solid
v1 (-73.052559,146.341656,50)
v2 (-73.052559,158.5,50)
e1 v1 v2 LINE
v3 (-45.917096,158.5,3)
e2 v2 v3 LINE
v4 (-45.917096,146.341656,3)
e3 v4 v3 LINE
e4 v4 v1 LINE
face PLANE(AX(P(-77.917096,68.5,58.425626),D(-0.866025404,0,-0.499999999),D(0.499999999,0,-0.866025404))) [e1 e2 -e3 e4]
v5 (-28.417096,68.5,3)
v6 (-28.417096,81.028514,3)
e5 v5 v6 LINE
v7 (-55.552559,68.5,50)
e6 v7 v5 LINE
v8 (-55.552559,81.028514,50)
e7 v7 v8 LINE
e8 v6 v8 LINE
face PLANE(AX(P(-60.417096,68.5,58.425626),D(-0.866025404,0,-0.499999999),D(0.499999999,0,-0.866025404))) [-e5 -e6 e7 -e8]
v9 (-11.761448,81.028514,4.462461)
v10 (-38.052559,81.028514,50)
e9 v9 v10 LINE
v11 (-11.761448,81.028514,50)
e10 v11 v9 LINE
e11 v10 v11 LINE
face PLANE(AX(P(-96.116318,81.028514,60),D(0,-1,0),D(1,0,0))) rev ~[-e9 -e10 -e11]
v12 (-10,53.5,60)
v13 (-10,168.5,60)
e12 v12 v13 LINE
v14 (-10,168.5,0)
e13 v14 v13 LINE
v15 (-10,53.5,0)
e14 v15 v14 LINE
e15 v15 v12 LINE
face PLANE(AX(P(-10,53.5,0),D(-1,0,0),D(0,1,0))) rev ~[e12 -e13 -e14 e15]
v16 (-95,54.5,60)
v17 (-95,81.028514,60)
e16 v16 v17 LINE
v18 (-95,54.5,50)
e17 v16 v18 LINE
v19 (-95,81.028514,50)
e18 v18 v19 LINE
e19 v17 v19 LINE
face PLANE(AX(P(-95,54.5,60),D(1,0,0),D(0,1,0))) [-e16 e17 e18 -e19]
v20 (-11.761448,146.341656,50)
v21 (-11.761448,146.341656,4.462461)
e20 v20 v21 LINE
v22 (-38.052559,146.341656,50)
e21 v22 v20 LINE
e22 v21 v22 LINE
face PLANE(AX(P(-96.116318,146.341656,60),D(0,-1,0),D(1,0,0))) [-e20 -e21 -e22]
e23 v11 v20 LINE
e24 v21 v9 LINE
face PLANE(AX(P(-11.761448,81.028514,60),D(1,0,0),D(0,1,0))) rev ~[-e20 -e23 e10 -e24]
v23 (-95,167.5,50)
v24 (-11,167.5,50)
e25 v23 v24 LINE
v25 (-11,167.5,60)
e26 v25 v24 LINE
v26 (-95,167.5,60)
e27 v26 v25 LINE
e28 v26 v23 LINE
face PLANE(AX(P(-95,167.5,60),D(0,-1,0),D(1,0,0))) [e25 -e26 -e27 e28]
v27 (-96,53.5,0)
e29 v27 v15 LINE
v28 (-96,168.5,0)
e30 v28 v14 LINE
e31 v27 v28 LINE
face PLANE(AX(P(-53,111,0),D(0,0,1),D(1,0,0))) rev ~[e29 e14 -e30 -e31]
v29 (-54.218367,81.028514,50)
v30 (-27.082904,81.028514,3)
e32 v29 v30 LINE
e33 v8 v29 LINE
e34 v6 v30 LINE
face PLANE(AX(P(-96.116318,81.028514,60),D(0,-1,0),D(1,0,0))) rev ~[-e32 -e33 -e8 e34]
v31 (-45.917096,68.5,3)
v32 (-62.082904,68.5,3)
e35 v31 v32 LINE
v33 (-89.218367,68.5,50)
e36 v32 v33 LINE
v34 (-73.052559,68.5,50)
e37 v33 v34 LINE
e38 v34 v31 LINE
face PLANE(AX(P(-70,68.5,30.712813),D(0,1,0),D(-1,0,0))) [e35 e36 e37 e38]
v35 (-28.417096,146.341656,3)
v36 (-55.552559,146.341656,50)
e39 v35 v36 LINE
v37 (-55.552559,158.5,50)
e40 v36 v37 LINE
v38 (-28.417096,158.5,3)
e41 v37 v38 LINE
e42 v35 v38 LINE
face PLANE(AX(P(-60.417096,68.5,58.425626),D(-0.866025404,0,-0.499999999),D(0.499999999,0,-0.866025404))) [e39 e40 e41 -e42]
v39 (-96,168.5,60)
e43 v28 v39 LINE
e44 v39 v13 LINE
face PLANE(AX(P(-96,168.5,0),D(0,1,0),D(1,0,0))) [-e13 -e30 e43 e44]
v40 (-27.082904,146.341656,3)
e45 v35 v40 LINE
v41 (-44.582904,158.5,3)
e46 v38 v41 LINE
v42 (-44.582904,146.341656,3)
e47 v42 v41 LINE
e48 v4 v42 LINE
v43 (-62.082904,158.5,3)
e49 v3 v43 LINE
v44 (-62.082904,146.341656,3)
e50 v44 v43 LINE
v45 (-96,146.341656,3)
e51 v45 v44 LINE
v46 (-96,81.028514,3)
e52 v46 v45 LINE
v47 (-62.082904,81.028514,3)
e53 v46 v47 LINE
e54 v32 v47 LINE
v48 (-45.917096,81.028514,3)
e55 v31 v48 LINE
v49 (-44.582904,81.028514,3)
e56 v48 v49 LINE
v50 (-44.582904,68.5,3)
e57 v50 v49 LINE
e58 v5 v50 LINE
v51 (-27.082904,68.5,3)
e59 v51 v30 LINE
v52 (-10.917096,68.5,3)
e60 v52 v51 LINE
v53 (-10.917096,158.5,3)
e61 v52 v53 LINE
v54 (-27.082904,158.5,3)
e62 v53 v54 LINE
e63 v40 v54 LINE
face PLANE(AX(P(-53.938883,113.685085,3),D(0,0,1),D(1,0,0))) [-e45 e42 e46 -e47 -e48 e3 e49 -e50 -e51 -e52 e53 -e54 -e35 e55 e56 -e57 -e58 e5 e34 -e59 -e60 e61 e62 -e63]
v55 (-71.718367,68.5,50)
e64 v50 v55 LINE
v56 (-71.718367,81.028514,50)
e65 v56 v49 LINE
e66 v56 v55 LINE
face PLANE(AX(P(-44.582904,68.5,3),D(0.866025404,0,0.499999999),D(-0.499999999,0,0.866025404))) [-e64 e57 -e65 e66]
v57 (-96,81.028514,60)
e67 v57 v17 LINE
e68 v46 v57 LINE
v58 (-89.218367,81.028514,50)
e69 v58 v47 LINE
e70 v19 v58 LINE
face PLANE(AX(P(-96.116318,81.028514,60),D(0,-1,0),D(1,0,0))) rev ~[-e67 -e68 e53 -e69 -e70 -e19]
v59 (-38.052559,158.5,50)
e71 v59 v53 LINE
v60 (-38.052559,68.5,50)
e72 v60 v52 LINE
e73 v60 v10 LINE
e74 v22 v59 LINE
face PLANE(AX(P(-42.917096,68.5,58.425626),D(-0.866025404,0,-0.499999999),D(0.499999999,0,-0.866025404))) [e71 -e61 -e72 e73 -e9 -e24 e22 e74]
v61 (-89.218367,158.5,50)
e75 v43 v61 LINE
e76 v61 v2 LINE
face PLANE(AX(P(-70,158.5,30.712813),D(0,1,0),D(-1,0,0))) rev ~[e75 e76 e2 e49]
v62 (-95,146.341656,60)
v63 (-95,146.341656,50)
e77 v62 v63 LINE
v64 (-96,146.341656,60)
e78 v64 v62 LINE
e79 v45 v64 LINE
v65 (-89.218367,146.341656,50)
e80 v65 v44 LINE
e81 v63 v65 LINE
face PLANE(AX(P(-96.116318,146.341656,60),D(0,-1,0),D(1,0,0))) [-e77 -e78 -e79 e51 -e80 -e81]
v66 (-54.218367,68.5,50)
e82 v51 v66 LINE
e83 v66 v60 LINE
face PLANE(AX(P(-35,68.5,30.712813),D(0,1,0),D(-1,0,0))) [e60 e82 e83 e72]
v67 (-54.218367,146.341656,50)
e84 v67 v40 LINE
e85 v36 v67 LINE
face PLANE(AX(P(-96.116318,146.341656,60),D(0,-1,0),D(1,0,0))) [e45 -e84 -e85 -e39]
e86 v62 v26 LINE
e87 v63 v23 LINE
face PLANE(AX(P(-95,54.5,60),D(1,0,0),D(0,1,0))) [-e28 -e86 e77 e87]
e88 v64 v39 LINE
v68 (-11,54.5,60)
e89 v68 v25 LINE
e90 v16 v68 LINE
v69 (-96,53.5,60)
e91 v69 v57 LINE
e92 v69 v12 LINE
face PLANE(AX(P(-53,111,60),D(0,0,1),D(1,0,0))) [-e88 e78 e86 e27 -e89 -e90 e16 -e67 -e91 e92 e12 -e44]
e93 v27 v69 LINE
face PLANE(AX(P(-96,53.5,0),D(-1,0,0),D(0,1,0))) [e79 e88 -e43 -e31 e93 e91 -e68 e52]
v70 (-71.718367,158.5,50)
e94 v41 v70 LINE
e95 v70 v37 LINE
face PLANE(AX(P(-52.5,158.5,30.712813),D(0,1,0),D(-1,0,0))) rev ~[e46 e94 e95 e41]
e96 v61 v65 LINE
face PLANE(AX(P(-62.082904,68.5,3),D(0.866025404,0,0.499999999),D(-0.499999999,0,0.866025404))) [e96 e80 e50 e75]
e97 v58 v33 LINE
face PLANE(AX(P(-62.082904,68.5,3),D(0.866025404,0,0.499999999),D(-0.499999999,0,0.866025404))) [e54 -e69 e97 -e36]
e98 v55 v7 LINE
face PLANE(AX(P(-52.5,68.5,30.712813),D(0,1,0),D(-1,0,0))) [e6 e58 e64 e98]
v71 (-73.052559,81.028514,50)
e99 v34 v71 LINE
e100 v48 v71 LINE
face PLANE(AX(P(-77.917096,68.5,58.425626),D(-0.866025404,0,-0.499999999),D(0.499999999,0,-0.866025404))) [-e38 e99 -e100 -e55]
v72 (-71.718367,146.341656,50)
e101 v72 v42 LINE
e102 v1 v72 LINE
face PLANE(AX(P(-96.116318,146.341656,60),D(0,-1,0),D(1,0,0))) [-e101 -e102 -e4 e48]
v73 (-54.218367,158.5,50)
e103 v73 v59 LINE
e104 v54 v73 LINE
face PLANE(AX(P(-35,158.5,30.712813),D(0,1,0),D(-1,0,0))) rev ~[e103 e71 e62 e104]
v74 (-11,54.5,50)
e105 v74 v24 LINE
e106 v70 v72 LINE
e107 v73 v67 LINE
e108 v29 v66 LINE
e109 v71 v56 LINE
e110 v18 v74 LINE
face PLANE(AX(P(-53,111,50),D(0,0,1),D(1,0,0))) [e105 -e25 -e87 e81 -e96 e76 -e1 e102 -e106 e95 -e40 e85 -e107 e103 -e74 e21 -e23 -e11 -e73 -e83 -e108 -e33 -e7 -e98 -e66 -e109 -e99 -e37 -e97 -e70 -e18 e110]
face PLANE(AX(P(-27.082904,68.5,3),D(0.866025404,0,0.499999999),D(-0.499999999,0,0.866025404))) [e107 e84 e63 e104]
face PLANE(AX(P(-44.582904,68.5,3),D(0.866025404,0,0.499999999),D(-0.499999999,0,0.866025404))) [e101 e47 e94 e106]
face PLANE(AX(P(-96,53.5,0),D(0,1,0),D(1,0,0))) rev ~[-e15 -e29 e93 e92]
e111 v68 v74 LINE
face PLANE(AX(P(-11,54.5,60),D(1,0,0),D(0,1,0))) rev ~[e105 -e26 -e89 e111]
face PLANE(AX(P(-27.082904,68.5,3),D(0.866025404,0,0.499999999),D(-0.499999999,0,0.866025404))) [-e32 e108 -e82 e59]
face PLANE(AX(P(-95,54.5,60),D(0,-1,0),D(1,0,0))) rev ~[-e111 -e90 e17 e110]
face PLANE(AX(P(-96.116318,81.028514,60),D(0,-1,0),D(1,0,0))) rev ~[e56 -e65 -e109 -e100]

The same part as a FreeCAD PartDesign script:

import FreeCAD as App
import Part
import Sketcher

V = App.Vector
Q = App.Units.Quantity

doc = App.newDocument("Part")
body = doc.addObject("PartDesign::Body", "Body")

sketch1 = doc.addObject("Sketcher::SketchObject", "Sketch")
body.addObject(sketch1)
sketch1.AttachmentSupport = (doc.XY_Plane, [""])
sketch1.MapMode = "FlatFace"
sketch1.addGeometry([
    Part.LineSegment(V(-43, 58, 0), V(-43, -58, 0)),
    Part.LineSegment(V(-43, -58, 0), V(43, -58, 0)),
    Part.LineSegment(V(43, -58, 0), V(43, 58, 0)),
    Part.LineSegment(V(43, 58, 0), V(-43, 58, 0)),
], False)
sketch1.addConstraint([
    Sketcher.Constraint("Coincident", 0, 2, 1, 1),
    Sketcher.Constraint("Coincident", 1, 2, 2, 1),
    Sketcher.Constraint("Coincident", 2, 2, 3, 1),
    Sketcher.Constraint("Coincident", 3, 2, 0, 1),
    Sketcher.Constraint("Vertical", 0),
    Sketcher.Constraint("Horizontal", 1),
    Sketcher.Constraint("Vertical", 2),
    Sketcher.Constraint("Horizontal", 3),
    Sketcher.Constraint("Symmetric", 0, 2, 2, 2, -1, 1),
    Sketcher.Constraint("DistanceX", 1, 1, 1, 2, 86.0),
    Sketcher.Constraint("DistanceY", 0, 2, 0, 1, 115.0),
])
pad1 = doc.addObject("PartDesign::Pad", "Pad")
body.addObject(pad1)
pad1.Profile = sketch1
pad1.Length = 60

sketch2 = doc.addObject("Sketcher::SketchObject", "Sketch001")
body.addObject(sketch2)
sketch2.AttachmentSupport = (doc.XZ_Plane, [""])
sketch2.MapMode = "FlatFace"
sketch2.AttachmentOffset = App.Placement(V(0, 0, 42.5), App.Rotation())
sketch2.addGeometry([
    Part.LineSegment(V(10, 58, 0), V(-6, 58, 0)),
    Part.LineSegment(V(-6, 58, 0), V(26, 3, 0)),
    Part.LineSegment(V(26, 3, 0), V(42, 3, 0)),
    Part.LineSegment(V(42, 3, 0), V(10, 58, 0)),
], False)
sketch2.addConstraint([
    Sketcher.Constraint("Coincident", 0, 2, 1, 1),
    Sketcher.Constraint("Coincident", 1, 2, 2, 1),
    Sketcher.Constraint("Coincident", 2, 2, 3, 1),
    Sketcher.Constraint("Coincident", 3, 2, 0, 1),
    Sketcher.Constraint("Horizontal", 0),
    Sketcher.Constraint("Horizontal", 2),
    Sketcher.Constraint("Parallel", 1, 3),
    Sketcher.Constraint("Angle", 1, Q("-60 deg")),
    Sketcher.Constraint("Distance", 1, 64.0),
    Sketcher.Constraint("DistanceY", -1, 1, 1, 2, 3.0),
    Sketcher.Constraint("DistanceX", 0, 2, 0, 1, 16.165808),
    Sketcher.Constraint("DistanceX", 0, 2, -1, 1, 6.082904),
])
pocket1 = doc.addObject("PartDesign::Pocket", "Pocket")
body.addObject(pocket1)
pocket1.Profile = sketch2
pocket1.Length = 90
doc.recompute()

linearpattern = doc.addObject("PartDesign::LinearPattern", "LinearPattern")
body.addObject(linearpattern)
linearpattern.Originals = [pocket1]
linearpattern.Direction = (doc.X_Axis, [""])
linearpattern.Mode = "offset"
linearpattern.Offset = 17.5
linearpattern.Occurrences = 3
linearpattern.Reversed = True
body.Tip = linearpattern

sketch3 = doc.addObject("Sketcher::SketchObject", "Sketch002")
body.addObject(sketch3)
sketch3.AttachmentSupport = (doc.XY_Plane, [""])
sketch3.MapMode = "FlatFace"
sketch3.AttachmentOffset = App.Placement(V(0, 0, 60), App.Rotation())
sketch3.addGeometry([
    Part.LineSegment(V(-42, 56, 0), V(-42, -56, 0)),
    Part.LineSegment(V(-42, -56, 0), V(42, -56, 0)),
    Part.LineSegment(V(42, -56, 0), V(42, 56, 0)),
    Part.LineSegment(V(42, 56, 0), V(-42, 56, 0)),
], False)
sketch3.addConstraint([
    Sketcher.Constraint("Coincident", 0, 2, 1, 1),
    Sketcher.Constraint("Coincident", 1, 2, 2, 1),
    Sketcher.Constraint("Coincident", 2, 2, 3, 1),
    Sketcher.Constraint("Coincident", 3, 2, 0, 1),
    Sketcher.Constraint("Vertical", 0),
    Sketcher.Constraint("Horizontal", 1),
    Sketcher.Constraint("Vertical", 2),
    Sketcher.Constraint("Horizontal", 3),
    Sketcher.Constraint("Symmetric", 0, 2, 2, 2, -1, 1),
    Sketcher.Constraint("DistanceX", 1, 1, 1, 2, 84.0),
    Sketcher.Constraint("DistanceY", 0, 2, 0, 1, 113.0),
])
pocket2 = doc.addObject("PartDesign::Pocket", "Pocket001")
body.addObject(pocket2)
pocket2.Profile = sketch3
pocket2.Length = 10

sketch4 = doc.addObject("Sketcher::SketchObject", "Sketch003")
body.addObject(sketch4)
sketch4.AttachmentSupport = (doc.XY_Plane, [""])
sketch4.MapMode = "FlatFace"
sketch4.AttachmentOffset = App.Placement(V(0, 0, 60), App.Rotation())
sketch4.addGeometry([
    Part.LineSegment(V(-43, 35, 0), V(-43, -30, 0)),
    Part.LineSegment(V(-43, -30, 0), V(41, -30, 0)),
    Part.LineSegment(V(41, -30, 0), V(41, 35, 0)),
    Part.LineSegment(V(41, 35, 0), V(-43, 35, 0)),
], False)
sketch4.addConstraint([
    Sketcher.Constraint("Coincident", 0, 2, 1, 1),
    Sketcher.Constraint("Coincident", 1, 2, 2, 1),
    Sketcher.Constraint("Coincident", 2, 2, 3, 1),
    Sketcher.Constraint("Coincident", 3, 2, 0, 1),
    Sketcher.Constraint("Vertical", 0),
    Sketcher.Constraint("Horizontal", 1),
    Sketcher.Constraint("Vertical", 2),
    Sketcher.Constraint("Horizontal", 3),
    Sketcher.Constraint("DistanceX", 1, 1, 1, 2, 84.35487),
    Sketcher.Constraint("DistanceY", 0, 2, 0, 1, 65.313143),
    Sketcher.Constraint("DistanceX", 0, 2, -1, 1, 43.116318),
    Sketcher.Constraint("DistanceY", 0, 2, -1, 1, 29.971487),
])
pocket3 = doc.addObject("PartDesign::Pocket", "Pocket002")
body.addObject(pocket3)
pocket3.Profile = sketch4
pocket3.Length = 57
body2 = doc.addObject("PartDesign::Body", "Body001")
doc.recompute()

body.Placement = App.Placement(V(-53, 111, 0), App.Rotation(V(0, 0, 1), 0))
boolean = doc.addObject("PartDesign::Boolean", "Boolean")
body2.addObject(boolean)
boolean.Type = "Fuse"
boolean.addObjects([body])

doc.recompute()
